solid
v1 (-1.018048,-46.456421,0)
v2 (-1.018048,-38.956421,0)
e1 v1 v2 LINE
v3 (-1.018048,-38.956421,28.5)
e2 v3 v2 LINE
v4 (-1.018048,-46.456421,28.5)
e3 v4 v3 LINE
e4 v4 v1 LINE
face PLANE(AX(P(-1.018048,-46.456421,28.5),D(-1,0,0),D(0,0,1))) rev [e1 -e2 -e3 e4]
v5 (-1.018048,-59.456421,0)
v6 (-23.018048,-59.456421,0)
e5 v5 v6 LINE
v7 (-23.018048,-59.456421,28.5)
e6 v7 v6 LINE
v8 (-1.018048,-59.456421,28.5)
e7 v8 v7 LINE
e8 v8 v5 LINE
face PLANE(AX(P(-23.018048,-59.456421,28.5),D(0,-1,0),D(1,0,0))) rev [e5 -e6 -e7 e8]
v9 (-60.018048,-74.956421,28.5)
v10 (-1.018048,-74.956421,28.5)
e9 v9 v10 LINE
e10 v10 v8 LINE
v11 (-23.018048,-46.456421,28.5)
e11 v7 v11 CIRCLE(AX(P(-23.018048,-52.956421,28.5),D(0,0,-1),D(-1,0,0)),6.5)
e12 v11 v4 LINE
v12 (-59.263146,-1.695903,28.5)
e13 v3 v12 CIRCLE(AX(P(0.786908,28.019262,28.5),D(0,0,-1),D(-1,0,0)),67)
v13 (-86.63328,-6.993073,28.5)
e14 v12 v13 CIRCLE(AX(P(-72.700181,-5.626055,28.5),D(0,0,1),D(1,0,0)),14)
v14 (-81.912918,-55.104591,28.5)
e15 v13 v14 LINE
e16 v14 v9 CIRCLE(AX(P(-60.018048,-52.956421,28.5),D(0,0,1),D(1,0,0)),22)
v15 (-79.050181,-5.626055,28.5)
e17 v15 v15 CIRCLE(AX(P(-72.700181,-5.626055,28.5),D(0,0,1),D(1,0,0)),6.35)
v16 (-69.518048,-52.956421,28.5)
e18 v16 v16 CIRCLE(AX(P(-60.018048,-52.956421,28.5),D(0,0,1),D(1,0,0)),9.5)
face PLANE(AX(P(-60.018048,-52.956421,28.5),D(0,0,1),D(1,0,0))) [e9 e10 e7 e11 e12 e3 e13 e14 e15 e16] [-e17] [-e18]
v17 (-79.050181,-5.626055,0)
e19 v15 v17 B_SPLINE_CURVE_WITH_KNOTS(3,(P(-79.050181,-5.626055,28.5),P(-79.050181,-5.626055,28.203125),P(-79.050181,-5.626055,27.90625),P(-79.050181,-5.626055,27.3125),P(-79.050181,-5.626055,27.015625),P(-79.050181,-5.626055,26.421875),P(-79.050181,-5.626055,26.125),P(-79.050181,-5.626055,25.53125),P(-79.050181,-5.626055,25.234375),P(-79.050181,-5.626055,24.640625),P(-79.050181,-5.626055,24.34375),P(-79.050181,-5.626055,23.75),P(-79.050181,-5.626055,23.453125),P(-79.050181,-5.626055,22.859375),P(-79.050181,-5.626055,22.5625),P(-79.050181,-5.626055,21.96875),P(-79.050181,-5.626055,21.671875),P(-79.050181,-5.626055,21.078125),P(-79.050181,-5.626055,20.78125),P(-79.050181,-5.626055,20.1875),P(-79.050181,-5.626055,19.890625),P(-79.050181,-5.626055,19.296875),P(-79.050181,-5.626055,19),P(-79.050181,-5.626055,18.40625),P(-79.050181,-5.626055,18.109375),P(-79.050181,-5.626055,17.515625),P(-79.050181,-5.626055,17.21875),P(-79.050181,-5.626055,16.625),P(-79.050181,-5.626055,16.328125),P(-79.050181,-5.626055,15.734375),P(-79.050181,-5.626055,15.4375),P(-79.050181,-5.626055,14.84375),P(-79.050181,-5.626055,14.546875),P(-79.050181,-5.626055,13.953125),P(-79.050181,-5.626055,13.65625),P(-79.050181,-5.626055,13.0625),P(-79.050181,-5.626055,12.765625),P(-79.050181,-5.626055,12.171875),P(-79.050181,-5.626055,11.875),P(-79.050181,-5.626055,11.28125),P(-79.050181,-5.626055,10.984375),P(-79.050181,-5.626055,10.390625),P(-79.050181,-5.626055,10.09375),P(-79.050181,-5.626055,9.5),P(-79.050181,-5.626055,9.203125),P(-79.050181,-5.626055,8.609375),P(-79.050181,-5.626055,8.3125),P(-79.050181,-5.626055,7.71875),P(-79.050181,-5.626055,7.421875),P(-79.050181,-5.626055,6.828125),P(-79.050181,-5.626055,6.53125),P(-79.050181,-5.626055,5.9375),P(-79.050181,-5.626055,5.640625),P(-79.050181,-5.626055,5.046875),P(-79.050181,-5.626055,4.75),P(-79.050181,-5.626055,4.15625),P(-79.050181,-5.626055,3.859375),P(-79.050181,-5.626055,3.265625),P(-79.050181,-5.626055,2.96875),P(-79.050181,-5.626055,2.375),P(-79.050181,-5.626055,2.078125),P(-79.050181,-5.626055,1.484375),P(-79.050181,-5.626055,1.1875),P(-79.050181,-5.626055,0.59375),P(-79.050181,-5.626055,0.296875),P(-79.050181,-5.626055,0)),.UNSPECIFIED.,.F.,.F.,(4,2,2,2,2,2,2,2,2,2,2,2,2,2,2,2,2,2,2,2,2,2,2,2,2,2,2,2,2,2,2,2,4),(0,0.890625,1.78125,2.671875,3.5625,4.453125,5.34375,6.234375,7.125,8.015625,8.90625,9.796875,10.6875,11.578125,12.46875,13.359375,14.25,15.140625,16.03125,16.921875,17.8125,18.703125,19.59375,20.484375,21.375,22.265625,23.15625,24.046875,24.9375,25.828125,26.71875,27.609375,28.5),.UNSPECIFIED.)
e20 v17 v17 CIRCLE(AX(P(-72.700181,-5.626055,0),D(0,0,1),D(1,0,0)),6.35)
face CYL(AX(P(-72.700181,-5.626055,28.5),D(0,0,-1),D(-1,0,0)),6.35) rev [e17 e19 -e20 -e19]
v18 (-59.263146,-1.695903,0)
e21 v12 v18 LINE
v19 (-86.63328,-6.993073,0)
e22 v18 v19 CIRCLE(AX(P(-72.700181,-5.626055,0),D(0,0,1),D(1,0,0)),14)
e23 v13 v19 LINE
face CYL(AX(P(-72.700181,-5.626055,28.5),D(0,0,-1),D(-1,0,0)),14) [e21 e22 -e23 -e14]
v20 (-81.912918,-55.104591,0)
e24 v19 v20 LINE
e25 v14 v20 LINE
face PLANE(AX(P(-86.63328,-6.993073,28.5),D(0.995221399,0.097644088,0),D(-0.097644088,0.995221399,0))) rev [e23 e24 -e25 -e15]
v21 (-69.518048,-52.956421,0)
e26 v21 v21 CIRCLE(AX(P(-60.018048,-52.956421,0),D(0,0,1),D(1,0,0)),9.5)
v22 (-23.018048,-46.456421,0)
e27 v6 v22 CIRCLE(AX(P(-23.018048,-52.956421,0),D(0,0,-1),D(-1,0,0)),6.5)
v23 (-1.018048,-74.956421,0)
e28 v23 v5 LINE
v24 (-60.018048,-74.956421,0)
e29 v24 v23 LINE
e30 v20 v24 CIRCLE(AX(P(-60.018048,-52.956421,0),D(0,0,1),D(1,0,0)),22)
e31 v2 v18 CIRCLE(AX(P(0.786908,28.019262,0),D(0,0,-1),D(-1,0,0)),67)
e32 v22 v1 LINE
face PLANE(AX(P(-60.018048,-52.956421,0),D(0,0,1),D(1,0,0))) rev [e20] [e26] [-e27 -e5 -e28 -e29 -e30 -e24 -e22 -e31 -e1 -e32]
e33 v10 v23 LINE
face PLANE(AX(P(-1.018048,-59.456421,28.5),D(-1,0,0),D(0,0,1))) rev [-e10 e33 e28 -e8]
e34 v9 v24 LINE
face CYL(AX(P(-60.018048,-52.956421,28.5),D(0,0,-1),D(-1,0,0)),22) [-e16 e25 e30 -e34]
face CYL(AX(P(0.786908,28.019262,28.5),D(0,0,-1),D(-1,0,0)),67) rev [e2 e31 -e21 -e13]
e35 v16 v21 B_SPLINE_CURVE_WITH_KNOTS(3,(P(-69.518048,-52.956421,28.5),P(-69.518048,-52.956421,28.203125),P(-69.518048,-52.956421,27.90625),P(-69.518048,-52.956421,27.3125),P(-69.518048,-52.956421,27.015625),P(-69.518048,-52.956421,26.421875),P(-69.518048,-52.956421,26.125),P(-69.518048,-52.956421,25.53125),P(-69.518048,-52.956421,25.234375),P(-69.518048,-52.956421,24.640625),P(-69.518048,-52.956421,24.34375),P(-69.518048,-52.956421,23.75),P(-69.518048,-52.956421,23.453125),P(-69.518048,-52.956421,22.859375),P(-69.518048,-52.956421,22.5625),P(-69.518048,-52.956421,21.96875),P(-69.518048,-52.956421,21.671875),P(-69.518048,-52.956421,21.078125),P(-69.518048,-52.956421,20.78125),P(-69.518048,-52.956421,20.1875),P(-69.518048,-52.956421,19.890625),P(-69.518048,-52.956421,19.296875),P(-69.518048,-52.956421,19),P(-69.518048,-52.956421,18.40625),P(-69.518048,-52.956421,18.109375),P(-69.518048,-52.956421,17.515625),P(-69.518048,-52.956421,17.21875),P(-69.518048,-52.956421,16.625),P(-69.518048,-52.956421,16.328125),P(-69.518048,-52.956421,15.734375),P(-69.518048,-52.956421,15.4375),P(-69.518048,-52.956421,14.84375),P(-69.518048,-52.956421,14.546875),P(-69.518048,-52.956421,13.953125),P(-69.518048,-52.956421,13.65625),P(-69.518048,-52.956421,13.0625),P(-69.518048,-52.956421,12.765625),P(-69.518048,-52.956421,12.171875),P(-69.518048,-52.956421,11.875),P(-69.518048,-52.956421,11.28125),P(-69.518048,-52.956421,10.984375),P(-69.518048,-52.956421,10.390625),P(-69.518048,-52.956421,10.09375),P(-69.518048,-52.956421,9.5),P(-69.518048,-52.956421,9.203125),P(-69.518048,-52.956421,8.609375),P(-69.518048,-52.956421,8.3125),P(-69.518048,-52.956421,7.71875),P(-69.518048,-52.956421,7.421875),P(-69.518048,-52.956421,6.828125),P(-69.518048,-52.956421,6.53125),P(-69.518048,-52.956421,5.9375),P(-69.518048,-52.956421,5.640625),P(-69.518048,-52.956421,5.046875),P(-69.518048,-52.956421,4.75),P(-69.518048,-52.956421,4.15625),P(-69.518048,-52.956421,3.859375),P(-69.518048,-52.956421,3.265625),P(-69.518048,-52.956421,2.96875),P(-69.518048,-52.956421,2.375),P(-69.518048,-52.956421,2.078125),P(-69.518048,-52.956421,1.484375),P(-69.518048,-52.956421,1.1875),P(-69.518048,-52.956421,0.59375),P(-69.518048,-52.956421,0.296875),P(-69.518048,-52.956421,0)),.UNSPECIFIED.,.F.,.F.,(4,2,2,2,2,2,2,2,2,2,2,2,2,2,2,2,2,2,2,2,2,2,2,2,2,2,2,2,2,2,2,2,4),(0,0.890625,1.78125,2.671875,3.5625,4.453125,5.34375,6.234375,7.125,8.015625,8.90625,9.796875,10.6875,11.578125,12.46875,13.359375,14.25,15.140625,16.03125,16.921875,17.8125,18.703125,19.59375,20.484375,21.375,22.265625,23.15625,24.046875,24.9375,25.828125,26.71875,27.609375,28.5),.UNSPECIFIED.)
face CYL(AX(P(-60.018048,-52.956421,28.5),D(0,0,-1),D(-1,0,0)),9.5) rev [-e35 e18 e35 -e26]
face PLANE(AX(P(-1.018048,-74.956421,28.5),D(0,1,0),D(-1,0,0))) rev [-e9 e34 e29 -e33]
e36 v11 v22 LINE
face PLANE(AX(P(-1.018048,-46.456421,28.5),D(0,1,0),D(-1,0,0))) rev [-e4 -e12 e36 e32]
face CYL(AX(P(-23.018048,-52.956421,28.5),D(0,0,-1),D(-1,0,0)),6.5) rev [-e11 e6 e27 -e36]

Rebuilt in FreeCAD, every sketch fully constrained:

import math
import FreeCAD as App
import Part
import Sketcher

V = App.Vector
Q = App.Units.Quantity

doc = App.newDocument("Part")
params = doc.addObject("Spreadsheet::Sheet", "Params")
for row, (alias, value) in enumerate([
    ("sketch1_diameter", "19 mm"),
    ("sketch1_radius", "22 mm"),
    ("sketch1_radius2", "67 mm"),
    ("sketch1_radius3", "14 mm"),
    ("sketch1_diameter2", "12.7 mm"),
    ("pad1_length", "28.5 mm"),
], start=1):
    params.set(f"A{row}", alias)
    params.set(f"B{row}", "=" + value)
    params.setAlias(f"B{row}", alias)

body = doc.addObject("PartDesign::Body", "Body")

sketch1 = body.newObject("Sketcher::SketchObject", "Sketch")
sketch1.AttachmentSupport = (doc.getObject("XY_Plane"), [""])
sketch1.MapMode = "FlatFace"
sketch1.addGeometry(Part.LineSegment(V(-86.63328, -6.993073, 0), V(-81.912918, -55.104591, 0)), False)
sketch1.addGeometry(Part.ArcOfCircle(Part.Circle(V(-60.018048, -52.956421, 0), V(0, 0, 1), 22), math.radians(-174.396477), math.radians(-90)), False)
sketch1.addGeometry(Part.LineSegment(V(-60.018048, -74.956421, 0), V(-1.018048, -74.956421, 0)), False)
sketch1.addGeometry(Part.LineSegment(V(-1.018048, -74.956421, 0), V(-1.018048, -59.456421, 0)), False)
sketch1.addGeometry(Part.LineSegment(V(-1.018048, -59.456421, 0), V(-23.018048, -59.456421, 0)), False)
sketch1.addGeometry(Part.ArcOfCircle(Part.Circle(V(-23.018048, -52.956421, 0), V(0, 0, 1), 6.5), math.radians(90), math.radians(270)), False)
sketch1.addGeometry(Part.LineSegment(V(-23.018048, -46.456421, 0), V(-1.018048, -46.456421, 0)), False)
sketch1.addGeometry(Part.LineSegment(V(-1.018048, -46.456421, 0), V(-1.018048, -38.956421, 0)), False)
sketch1.addGeometry(Part.ArcOfCircle(Part.Circle(V(0.786908, 28.019262, 0), V(0, 0, 1), 67), math.radians(-153.671956), math.radians(-91.543714)), False)
sketch1.addGeometry(Part.ArcOfCircle(Part.Circle(V(-72.700181, -5.626055, 0), V(0, 0, 1), 14), math.radians(16.30349), math.radians(185.603523)), False)
sketch1.addGeometry(Part.Circle(V(-60.018048, -52.956421, 0), V(0, 0, 1), 9.5), False)
sketch1.addGeometry(Part.Circle(V(-72.700181, -5.626055, 0), V(0, 0, 1), 6.35), False)
sketch1.addConstraint(Sketcher.Constraint("Coincident", 0, 2, 1, 1))
sketch1.addConstraint(Sketcher.Constraint("Coincident", 1, 2, 2, 1))
sketch1.addConstraint(Sketcher.Constraint("Coincident", 2, 2, 3, 1))
sketch1.addConstraint(Sketcher.Constraint("Coincident", 3, 2, 4, 1))
sketch1.addConstraint(Sketcher.Constraint("Coincident", 4, 2, 5, 2))
sketch1.addConstraint(Sketcher.Constraint("Coincident", 5, 1, 6, 1))
sketch1.addConstraint(Sketcher.Constraint("Coincident", 6, 2, 7, 1))
sketch1.addConstraint(Sketcher.Constraint("Coincident", 7, 2, 8, 2))
sketch1.addConstraint(Sketcher.Constraint("Coincident", 8, 1, 9, 1))
sketch1.addConstraint(Sketcher.Constraint("Coincident", 9, 2, 0, 1))
sketch1.addConstraint(Sketcher.Constraint("Horizontal", 2))
sketch1.addConstraint(Sketcher.Constraint("Vertical", 3))
sketch1.addConstraint(Sketcher.Constraint("Horizontal", 4))
sketch1.addConstraint(Sketcher.Constraint("Horizontal", 6))
sketch1.addConstraint(Sketcher.Constraint("Vertical", 7))
sketch1.addConstraint(Sketcher.Constraint("Coincident", 10, 3, 1, 3))
sketch1.addConstraint(Sketcher.Constraint("Coincident", 11, 3, 9, 3))
sketch1.addConstraint(Sketcher.Constraint("Diameter", 10, Q("19 mm")))
sketch1.addConstraint(Sketcher.Constraint("Radius", 1, Q("22 mm")))
sketch1.addConstraint(Sketcher.Constraint("Radius", 8, Q("67 mm")))
sketch1.addConstraint(Sketcher.Constraint("Radius", 9, Q("14 mm")))
sketch1.addConstraint(Sketcher.Constraint("Diameter", 11, Q("12.7 mm")))
sketch1.addConstraint(Sketcher.Constraint("Radius", 5, Q("6.5 mm")))
sketch1.addConstraint(Sketcher.Constraint("DistanceX", 2, 1, 2, 2, Q("59 mm")))
sketch1.addConstraint(Sketcher.Constraint("DistanceX", 4, 2, 4, 1, Q("22 mm")))
sketch1.addConstraint(Sketcher.Constraint("DistanceX", 6, 1, 6, 2, Q("22 mm")))
sketch1.addConstraint(Sketcher.Constraint("DistanceY", 3, 1, 3, 2, Q("15.5 mm")))
sketch1.addConstraint(Sketcher.Constraint("DistanceY", 7, 1, 7, 2, Q("7.5 mm")))
sketch1.addConstraint(Sketcher.Constraint("DistanceX", 1, 3, 5, 3, Q("37 mm")))
sketch1.addConstraint(Sketcher.Constraint("DistanceX", 1, 2, 5, 3, Q("37 mm")))
sketch1.addConstraint(Sketcher.Constraint("DistanceX", 5, 1, 3, 2, Q("22 mm")))
sketch1.addConstraint(Sketcher.Constraint("DistanceX", 1, 3, 8, 1, Q("0.754902 mm")))
sketch1.addConstraint(Sketcher.Constraint("DistanceX", 9, 2, 9, 3, Q("13.9331 mm")))
sketch1.addConstraint(Sketcher.Constraint("DistanceY", 1, 3, -1, 1, Q("52.956421 mm")))
sketch1.addConstraint(Sketcher.Constraint("DistanceX", 9, 3, -1, 1, Q("72.700181 mm")))
sketch1.addConstraint(Sketcher.Constraint("DistanceX", 0, 2, -1, 1, Q("81.912918 mm")))
sketch1.addConstraint(Sketcher.Constraint("DistanceY", 0, 2, -1, 1, Q("55.104591 mm")))
sketch1.addConstraint(Sketcher.Constraint("DistanceX", 9, 3, 8, 3, Q("73.487088 mm")))
sketch1.setExpression("Constraints[17]", "Params.sketch1_diameter")
sketch1.setExpression("Constraints[18]", "Params.sketch1_radius")
sketch1.setExpression("Constraints[19]", "Params.sketch1_radius2")
sketch1.setExpression("Constraints[20]", "Params.sketch1_radius3")
sketch1.setExpression("Constraints[21]", "Params.sketch1_diameter2")
pad1 = body.newObject("PartDesign::Pad", "Pad")
pad1.Profile = sketch1
pad1.setExpression("Length", "Params.pad1_length")

doc.recompute()
